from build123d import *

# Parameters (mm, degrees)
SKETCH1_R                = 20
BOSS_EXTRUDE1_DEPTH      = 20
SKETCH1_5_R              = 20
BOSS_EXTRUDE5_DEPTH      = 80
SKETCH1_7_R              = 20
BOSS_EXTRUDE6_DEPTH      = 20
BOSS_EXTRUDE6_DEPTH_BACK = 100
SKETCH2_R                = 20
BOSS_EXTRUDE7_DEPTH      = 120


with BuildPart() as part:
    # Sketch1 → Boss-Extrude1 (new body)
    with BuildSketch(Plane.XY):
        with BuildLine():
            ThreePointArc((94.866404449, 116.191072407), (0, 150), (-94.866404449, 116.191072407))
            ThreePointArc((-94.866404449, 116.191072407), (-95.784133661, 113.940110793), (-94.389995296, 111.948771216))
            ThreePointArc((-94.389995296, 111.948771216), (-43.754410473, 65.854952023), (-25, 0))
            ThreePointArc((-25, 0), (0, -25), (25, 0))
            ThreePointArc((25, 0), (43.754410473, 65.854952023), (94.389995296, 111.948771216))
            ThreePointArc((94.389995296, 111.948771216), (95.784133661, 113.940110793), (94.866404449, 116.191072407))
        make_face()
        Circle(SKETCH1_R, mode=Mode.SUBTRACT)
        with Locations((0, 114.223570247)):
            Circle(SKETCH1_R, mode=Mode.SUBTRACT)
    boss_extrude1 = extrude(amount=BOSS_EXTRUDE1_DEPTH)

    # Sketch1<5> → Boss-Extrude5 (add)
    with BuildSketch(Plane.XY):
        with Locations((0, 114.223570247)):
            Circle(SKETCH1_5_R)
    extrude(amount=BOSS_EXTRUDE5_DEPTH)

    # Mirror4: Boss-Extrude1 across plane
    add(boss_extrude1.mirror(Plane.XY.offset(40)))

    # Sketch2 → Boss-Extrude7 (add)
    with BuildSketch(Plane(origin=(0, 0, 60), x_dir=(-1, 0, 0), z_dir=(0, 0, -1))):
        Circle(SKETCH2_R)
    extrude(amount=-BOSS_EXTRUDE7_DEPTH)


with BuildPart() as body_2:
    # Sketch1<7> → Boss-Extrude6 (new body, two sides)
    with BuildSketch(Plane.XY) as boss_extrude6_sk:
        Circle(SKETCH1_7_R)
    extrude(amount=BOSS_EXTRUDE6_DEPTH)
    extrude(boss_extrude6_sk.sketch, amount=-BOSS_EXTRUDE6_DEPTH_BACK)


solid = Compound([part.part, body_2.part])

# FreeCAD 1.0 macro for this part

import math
import FreeCAD as App
import Part
import Sketcher

doc = App.newDocument("Part")
body = doc.addObject("PartDesign::Body", "Body")

# Sketch on XY plane
sketch1 = body.newObject("Sketcher::SketchObject", "Sketch")
sketch1.AttachmentSupport = (doc.getObject("XY_Plane"), [""])
sketch1.MapMode = "FlatFace"
sketch1.addGeometry(Part.ArcOfCircle(Part.Circle(App.Vector(0, 0, 0), App.Vector(0, 0, 1), 150), math.radians(50.769429), math.radians(129.230571)), False)
sketch1.addGeometry(Part.ArcOfCircle(Part.Circle(App.Vector(-93.26, 114.22357, 0), App.Vector(0, 0, 1), 2.54), math.radians(129.230571), math.radians(243.584336)), False)
sketch1.addGeometry(Part.ArcOfCircle(Part.Circle(App.Vector(-150, 0, 0), App.Vector(0, 0, 1), 125), math.radians(0), math.radians(63.584336)), False)
sketch1.addGeometry(Part.ArcOfCircle(Part.Circle(App.Vector(0, 0, 0), App.Vector(0, 0, 1), 25), math.radians(180), math.radians(360)), False)
sketch1.addGeometry(Part.ArcOfCircle(Part.Circle(App.Vector(150, 0, 0), App.Vector(0, 0, 1), 125), math.radians(116.415664), math.radians(180)), False)
sketch1.addGeometry(Part.ArcOfCircle(Part.Circle(App.Vector(93.26, 114.22357, 0), App.Vector(0, 0, 1), 2.54), math.radians(-63.584336), math.radians(50.769429)), False)
sketch1.addGeometry(Part.Circle(App.Vector(0, 0, 0), App.Vector(0, 0, 1), 20), False)
sketch1.addGeometry(Part.Circle(App.Vector(0, 114.22357, 0), App.Vector(0, 0, 1), 20), False)
sketch1.addConstraint(Sketcher.Constraint("Tangent", 0, 2, 1, 1))
sketch1.addConstraint(Sketcher.Constraint("Tangent", 1, 2, 2, 2))
sketch1.addConstraint(Sketcher.Constraint("Tangent", 2, 1, 3, 1))
sketch1.addConstraint(Sketcher.Constraint("Tangent", 3, 2, 4, 2))
sketch1.addConstraint(Sketcher.Constraint("Tangent", 4, 1, 5, 1))
sketch1.addConstraint(Sketcher.Constraint("Tangent", 5, 2, 0, 1))
sketch1.addConstraint(Sketcher.Constraint("Coincident", 0, 3, -1, 1))
sketch1.addConstraint(Sketcher.Constraint("Coincident", 3, 3, -1, 1))
sketch1.addConstraint(Sketcher.Constraint("Coincident", 6, 3, -1, 1))
sketch1.addConstraint(Sketcher.Constraint("Equal", 2, 4))
sketch1.addConstraint(Sketcher.Constraint("Equal", 1, 5))
sketch1.addConstraint(Sketcher.Constraint("Equal", 6, 7))
sketch1.addConstraint(Sketcher.Constraint("PointOnObject", 2, 3, -1))
sketch1.addConstraint(Sketcher.Constraint("PointOnObject", 4, 3, -1))
sketch1.addConstraint(Sketcher.Constraint("PointOnObject", 7, 3, -2))
sketch1.addConstraint(Sketcher.Constraint("Horizontal", 5, 3, 7, 3))
sketch1.addConstraint(Sketcher.Constraint("Diameter", 6, 40.0))
sketch1.addConstraint(Sketcher.Constraint("Radius", 0, 150.0))
sketch1.addConstraint(Sketcher.Constraint("Radius", 2, 125.0))
sketch1.addConstraint(Sketcher.Constraint("Radius", 3, 25.0))
sketch1.addConstraint(Sketcher.Constraint("Radius", 1, 2.54))
pad1 = body.newObject("PartDesign::Pad", "Pad")
pad1.Profile = sketch1
pad1.Length = 20

# Sketch on XY plane
sketch2 = body.newObject("Sketcher::SketchObject", "Sketch001")
sketch2.AttachmentSupport = (doc.getObject("XY_Plane"), [""])
sketch2.MapMode = "FlatFace"
sketch2.addGeometry(Part.Circle(App.Vector(0, 114.22357, 0), App.Vector(0, 0, 1), 20), False)
sketch2.addConstraint(Sketcher.Constraint("PointOnObject", 0, 3, -2))
sketch2.addConstraint(Sketcher.Constraint("Diameter", 0, 40.0))
sketch2.addConstraint(Sketcher.Constraint("DistanceY", -1, 1, 0, 3, 114.22357))
pad2 = body.newObject("PartDesign::Pad", "Pad001")
pad2.Profile = sketch2
pad2.Length = 80
doc.recompute()

datumplane = body.newObject("PartDesign::Plane", "DatumPlane")
datumplane.AttachmentSupport = (doc.getObject("XY_Plane"), [""])
datumplane.MapMode = "FlatFace"
datumplane.AttachmentOffset = App.Placement(App.Vector(0, 0, 40), App.Rotation())
mirrored = body.newObject("PartDesign::Mirrored", "Mirrored")
mirrored.Originals = [pad1]
mirrored.MirrorPlane = (datumplane, [""])
body.Tip = mirrored

# Sketch on XY plane
sketch3 = body.newObject("Sketcher::SketchObject", "Sketch002")
sketch3.AttachmentSupport = (doc.getObject("XY_Plane"), [""])
sketch3.MapMode = "FlatFace"
sketch3.AttachmentOffset = App.Placement(App.Vector(0, 0, 60), App.Rotation())
sketch3.addGeometry(Part.Circle(App.Vector(0, 0, 0), App.Vector(0, 0, 1), 20), False)
sketch3.addConstraint(Sketcher.Constraint("Coincident", 0, 3, -1, 1))
sketch3.addConstraint(Sketcher.Constraint("Diameter", 0, 40.0))
pad3 = body.newObject("PartDesign::Pad", "Pad002")
pad3.Profile = sketch3
pad3.Length = 120
body2 = doc.addObject("PartDesign::Body", "Body001")

# Sketch on XY plane
sketch4 = body2.newObject("Sketcher::SketchObject", "Sketch003")
sketch4.AttachmentSupport = (doc.getObject("XY_Plane001"), [""])
sketch4.MapMode = "FlatFace"
sketch4.addGeometry(Part.Circle(App.Vector(0, 0, 0), App.Vector(0, 0, 1), 20), False)
sketch4.addConstraint(Sketcher.Constraint("Coincident", 0, 3, -1, 1))
sketch4.addConstraint(Sketcher.Constraint("Diameter", 0, 40.0))
pad4 = body2.newObject("PartDesign::Pad", "Pad003")
pad4.Profile = sketch4
pad4.Type = "TwoLengths"
pad4.Length = 20
pad4.Length2 = 100

doc.recompute()
